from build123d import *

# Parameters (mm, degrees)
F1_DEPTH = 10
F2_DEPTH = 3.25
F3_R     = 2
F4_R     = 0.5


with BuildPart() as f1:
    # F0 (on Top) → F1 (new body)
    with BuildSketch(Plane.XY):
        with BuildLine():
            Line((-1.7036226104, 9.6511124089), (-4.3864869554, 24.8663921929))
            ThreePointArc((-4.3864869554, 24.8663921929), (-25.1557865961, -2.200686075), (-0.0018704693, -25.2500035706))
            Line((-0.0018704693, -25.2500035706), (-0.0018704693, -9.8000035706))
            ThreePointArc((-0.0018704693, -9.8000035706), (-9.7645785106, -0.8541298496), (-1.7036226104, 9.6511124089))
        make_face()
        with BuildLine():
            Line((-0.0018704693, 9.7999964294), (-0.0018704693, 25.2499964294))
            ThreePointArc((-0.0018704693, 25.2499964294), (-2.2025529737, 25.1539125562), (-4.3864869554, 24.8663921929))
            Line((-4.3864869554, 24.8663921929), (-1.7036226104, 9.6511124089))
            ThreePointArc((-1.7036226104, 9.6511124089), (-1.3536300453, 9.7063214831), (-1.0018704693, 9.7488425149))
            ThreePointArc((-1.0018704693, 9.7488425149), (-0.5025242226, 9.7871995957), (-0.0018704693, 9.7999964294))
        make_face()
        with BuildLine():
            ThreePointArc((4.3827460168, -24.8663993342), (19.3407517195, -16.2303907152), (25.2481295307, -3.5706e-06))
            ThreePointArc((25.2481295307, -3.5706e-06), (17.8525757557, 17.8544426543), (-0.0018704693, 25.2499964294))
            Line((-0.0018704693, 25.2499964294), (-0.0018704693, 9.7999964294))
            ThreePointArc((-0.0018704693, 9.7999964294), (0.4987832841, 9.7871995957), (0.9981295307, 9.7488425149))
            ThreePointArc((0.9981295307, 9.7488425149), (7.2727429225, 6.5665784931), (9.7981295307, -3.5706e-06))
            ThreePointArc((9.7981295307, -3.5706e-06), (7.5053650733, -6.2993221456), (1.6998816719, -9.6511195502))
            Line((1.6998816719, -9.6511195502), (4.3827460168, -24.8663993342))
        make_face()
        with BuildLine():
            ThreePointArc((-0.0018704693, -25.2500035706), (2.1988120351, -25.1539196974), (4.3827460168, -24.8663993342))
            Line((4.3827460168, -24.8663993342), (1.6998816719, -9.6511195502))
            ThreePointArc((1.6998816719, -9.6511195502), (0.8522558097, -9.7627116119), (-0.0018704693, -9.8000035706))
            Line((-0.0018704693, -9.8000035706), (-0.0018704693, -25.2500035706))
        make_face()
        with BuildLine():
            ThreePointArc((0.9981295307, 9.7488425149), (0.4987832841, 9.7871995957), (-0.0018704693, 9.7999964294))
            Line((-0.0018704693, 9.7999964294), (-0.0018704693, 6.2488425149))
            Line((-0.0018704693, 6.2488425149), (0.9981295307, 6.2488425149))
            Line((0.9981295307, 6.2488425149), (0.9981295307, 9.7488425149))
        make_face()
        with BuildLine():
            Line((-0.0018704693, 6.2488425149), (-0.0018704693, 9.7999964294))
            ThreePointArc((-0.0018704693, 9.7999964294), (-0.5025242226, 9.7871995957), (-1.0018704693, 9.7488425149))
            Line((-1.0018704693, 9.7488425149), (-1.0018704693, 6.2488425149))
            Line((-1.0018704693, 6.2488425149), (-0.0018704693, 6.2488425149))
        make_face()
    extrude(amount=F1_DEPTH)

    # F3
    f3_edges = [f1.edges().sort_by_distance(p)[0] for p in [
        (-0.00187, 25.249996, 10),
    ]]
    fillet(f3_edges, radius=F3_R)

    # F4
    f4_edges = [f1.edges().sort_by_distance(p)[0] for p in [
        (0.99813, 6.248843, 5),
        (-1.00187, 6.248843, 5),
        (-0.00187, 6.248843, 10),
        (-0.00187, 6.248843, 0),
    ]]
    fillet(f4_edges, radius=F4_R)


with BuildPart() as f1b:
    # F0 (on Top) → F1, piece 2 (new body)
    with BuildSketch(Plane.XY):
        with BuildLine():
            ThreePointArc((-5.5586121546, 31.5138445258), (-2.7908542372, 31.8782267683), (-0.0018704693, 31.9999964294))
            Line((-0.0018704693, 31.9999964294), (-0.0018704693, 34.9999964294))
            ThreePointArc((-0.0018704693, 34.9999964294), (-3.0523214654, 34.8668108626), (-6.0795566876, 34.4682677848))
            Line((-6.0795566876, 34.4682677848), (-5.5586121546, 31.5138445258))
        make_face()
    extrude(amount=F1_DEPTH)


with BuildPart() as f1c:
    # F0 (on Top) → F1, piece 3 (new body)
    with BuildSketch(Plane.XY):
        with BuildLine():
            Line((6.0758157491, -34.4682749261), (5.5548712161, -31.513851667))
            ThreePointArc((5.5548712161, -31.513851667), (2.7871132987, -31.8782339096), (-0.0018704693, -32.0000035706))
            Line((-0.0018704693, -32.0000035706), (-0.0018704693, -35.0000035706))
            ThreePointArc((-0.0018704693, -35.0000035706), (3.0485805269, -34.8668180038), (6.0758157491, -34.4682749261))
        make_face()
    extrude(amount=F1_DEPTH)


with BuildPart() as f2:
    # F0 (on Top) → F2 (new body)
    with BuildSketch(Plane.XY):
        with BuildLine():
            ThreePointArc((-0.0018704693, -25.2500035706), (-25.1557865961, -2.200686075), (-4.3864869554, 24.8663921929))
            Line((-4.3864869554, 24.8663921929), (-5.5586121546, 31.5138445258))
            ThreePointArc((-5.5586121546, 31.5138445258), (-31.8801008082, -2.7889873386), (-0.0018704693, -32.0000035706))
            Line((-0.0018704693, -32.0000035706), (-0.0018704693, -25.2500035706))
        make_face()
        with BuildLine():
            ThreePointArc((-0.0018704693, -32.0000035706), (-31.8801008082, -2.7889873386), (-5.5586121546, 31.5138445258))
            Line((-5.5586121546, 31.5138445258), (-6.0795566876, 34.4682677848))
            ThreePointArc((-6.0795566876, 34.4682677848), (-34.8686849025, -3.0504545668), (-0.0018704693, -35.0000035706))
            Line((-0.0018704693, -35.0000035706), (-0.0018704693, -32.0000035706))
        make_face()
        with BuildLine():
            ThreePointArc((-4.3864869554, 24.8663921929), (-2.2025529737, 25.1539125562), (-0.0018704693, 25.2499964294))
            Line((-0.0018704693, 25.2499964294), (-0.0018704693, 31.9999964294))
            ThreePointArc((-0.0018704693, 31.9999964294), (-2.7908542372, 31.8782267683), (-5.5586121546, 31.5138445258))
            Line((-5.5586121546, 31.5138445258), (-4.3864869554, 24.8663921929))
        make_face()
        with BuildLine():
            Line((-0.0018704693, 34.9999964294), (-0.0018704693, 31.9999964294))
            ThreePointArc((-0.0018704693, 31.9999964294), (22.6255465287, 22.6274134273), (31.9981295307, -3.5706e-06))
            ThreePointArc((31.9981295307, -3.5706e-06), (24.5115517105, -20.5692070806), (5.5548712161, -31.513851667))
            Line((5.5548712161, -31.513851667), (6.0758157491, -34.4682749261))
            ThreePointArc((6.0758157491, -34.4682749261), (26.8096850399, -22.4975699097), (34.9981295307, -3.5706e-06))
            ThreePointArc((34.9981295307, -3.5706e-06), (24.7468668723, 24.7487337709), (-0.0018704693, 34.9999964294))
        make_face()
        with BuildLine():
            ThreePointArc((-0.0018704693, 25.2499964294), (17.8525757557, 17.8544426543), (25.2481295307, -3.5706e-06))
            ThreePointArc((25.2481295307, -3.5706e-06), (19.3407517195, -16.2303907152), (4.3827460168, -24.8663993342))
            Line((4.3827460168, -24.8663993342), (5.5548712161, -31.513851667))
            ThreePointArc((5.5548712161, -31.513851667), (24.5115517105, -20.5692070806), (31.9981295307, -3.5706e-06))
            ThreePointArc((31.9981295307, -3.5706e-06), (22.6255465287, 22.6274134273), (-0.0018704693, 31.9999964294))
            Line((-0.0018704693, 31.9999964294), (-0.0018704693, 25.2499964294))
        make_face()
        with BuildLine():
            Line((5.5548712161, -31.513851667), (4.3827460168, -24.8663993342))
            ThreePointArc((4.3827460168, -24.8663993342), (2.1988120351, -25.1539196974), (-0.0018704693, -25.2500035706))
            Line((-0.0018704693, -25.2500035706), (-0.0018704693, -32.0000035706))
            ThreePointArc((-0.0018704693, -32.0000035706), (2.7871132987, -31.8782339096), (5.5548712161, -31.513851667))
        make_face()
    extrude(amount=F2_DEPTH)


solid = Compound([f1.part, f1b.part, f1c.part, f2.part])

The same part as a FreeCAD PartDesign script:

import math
import FreeCAD as App
import Part
import Sketcher
from FreeCAD import Vector
Q = App.Units.Quantity


def edges_at(feature, points):
    """Names of the edges that pass closest to the given points."""
    edges = feature.Shape.Edges
    near = lambda p: min(range(len(edges)), key=lambda i: edges[i].distToShape(Part.Vertex(*p))[0])
    return sorted({f"Edge{near(p) + 1}" for p in points})

doc = App.newDocument("Part")
body = doc.addObject("PartDesign::Body", "Body")

sketch1 = body.newObject("Sketcher::SketchObject", "Sketch")
sketch1.AttachmentSupport = (doc.getObject("XY_Plane"), [""])
sketch1.MapMode = "FlatFace"
sketch1.addGeometry(Part.ArcOfCircle(Part.Circle(Vector(-0.00187, -0.000004, 0), Vector(0, 0, 1), 25.25), math.radians(100), math.radians(270)), False)
sketch1.addGeometry(Part.ArcOfCircle(Part.Circle(Vector(-0.00187, -0.000004, 0), Vector(0, 0, 1), 25.25), math.radians(-90), math.radians(-80)), False)
sketch1.addGeometry(Part.ArcOfCircle(Part.Circle(Vector(-0.00187, -0.000004, 0), Vector(0, 0, 1), 25.25), math.radians(-80), math.radians(0)), False)
sketch1.addGeometry(Part.ArcOfCircle(Part.Circle(Vector(-0.00187, -0.000004, 0), Vector(0, 0, 1), 25.25), math.radians(0), math.radians(90)), False)
sketch1.addGeometry(Part.ArcOfCircle(Part.Circle(Vector(-0.00187, -0.000004, 0), Vector(0, 0, 1), 25.25), math.radians(90), math.radians(100)), False)
sketch1.addGeometry(Part.ArcOfCircle(Part.Circle(Vector(-0.00187, -0.000004, 0), Vector(0, 0, 1), 9.8), math.radians(100), math.radians(270)), False)
sketch1.addGeometry(Part.ArcOfCircle(Part.Circle(Vector(-0.00187, -0.000004, 0), Vector(0, 0, 1), 9.8), math.radians(95.856702), math.radians(100)), False)
sketch1.addGeometry(Part.LineSegment(Vector(-1.00187, 9.748843, 0), Vector(-1.00187, 6.248843, 0)), False)
sketch1.addGeometry(Part.LineSegment(Vector(-1.00187, 6.248843, 0), Vector(0.99813, 6.248843, 0)), False)
sketch1.addGeometry(Part.LineSegment(Vector(0.99813, 6.248843, 0), Vector(0.99813, 9.748843, 0)), False)
sketch1.addGeometry(Part.ArcOfCircle(Part.Circle(Vector(-0.00187, -0.000004, 0), Vector(0, 0, 1), 9.8), math.radians(0), math.radians(84.143298)), False)
sketch1.addGeometry(Part.ArcOfCircle(Part.Circle(Vector(-0.00187, -0.000004, 0), Vector(0, 0, 1), 9.8), math.radians(-80), math.radians(0)), False)
sketch1.addGeometry(Part.ArcOfCircle(Part.Circle(Vector(-0.00187, -0.000004, 0), Vector(0, 0, 1), 9.8), math.radians(-90), math.radians(-80)), False)
sketch1.addConstraint(Sketcher.Constraint("Tangent", 0, 2, 1, 1))
sketch1.addConstraint(Sketcher.Constraint("Tangent", 1, 2, 2, 1))
sketch1.addConstraint(Sketcher.Constraint("Tangent", 2, 2, 3, 1))
sketch1.addConstraint(Sketcher.Constraint("Tangent", 3, 2, 4, 1))
sketch1.addConstraint(Sketcher.Constraint("Tangent", 4, 2, 0, 1))
sketch1.addConstraint(Sketcher.Constraint("Tangent", 5, 1, 6, 2))
sketch1.addConstraint(Sketcher.Constraint("Coincident", 6, 1, 7, 1))
sketch1.addConstraint(Sketcher.Constraint("Coincident", 7, 2, 8, 1))
sketch1.addConstraint(Sketcher.Constraint("Coincident", 8, 2, 9, 1))
sketch1.addConstraint(Sketcher.Constraint("Coincident", 9, 2, 10, 2))
sketch1.addConstraint(Sketcher.Constraint("Tangent", 10, 1, 11, 2))
sketch1.addConstraint(Sketcher.Constraint("Tangent", 11, 1, 12, 2))
sketch1.addConstraint(Sketcher.Constraint("Tangent", 12, 1, 5, 2))
sketch1.addConstraint(Sketcher.Constraint("Vertical", 7))
sketch1.addConstraint(Sketcher.Constraint("Horizontal", 8))
sketch1.addConstraint(Sketcher.Constraint("Vertical", 9))
sketch1.addConstraint(Sketcher.Constraint("Coincident", 2, 3, 0, 3))
sketch1.addConstraint(Sketcher.Constraint("Coincident", 5, 3, 0, 3))
sketch1.addConstraint(Sketcher.Constraint("Coincident", 10, 3, 0, 3))
sketch1.addConstraint(Sketcher.Constraint("Equal", 5, 6))
sketch1.addConstraint(Sketcher.Constraint("Equal", 6, 10))
sketch1.addConstraint(Sketcher.Constraint("Symmetric", 0, 2, 3, 2, -1))
sketch1.addConstraint(Sketcher.Constraint("Horizontal", 12, 3, 2, 2))
sketch1.addConstraint(Sketcher.Constraint("Horizontal", 6, 1, 9, 2))
sketch1.addConstraint(Sketcher.Constraint("Horizontal", 2, 2, 10, 1))
sketch1.addConstraint(Sketcher.Constraint("Vertical", 12, 3, 0, 2))
sketch1.addConstraint(Sketcher.Constraint("Vertical", 3, 2, 12, 1))
sketch1.addConstraint(Sketcher.Constraint("Radius", 5, Q("9.8 mm")))
sketch1.addConstraint(Sketcher.Constraint("DistanceX", 8, 1, 8, 2, Q("2 mm")))
sketch1.addConstraint(Sketcher.Constraint("Radius", 0, Q("25.25 mm")))
sketch1.addConstraint(Sketcher.Constraint("DistanceY", 7, 2, 7, 1, Q("3.5 mm")))
sketch1.addConstraint(Sketcher.Constraint("DistanceY", 1, 2, -1, 1, Q("24.866399 mm")))
sketch1.addConstraint(Sketcher.Constraint("DistanceX", 0, 3, -1, 1, Q("0.00187 mm")))
sketch1.addConstraint(Sketcher.Constraint("DistanceX", -1, 1, 11, 1, Q("1.699882 mm")))
sketch1.addConstraint(Sketcher.Constraint("DistanceY", 5, 1, 6, 1, Q("0.09773 mm")))
sketch1.addConstraint(Sketcher.Constraint("DistanceX", 4, 2, -1, 1, Q("4.386487 mm")))
pad1 = body.newObject("PartDesign::Pad", "Pad")
pad1.Profile = sketch1
pad1.Length = 10
doc.recompute()

fillet = body.newObject("PartDesign::Fillet", "Fillet")
fillet.Base = (pad1, edges_at(pad1, [(17.853, 17.854, 10)]))
fillet.Radius = 2
doc.recompute()

fillet2 = body.newObject("PartDesign::Fillet", "Fillet001")
fillet2.Base = (fillet, edges_at(fillet, [
    (0.998, 6.249, 5),
    (-1.002, 6.249, 5),
    (-0.002, 6.249, 10),
    (-0.002, 6.249, 0),
]))
fillet2.Radius = 0.5
body2 = doc.addObject("PartDesign::Body", "Body001")

sketch2 = body2.newObject("Sketcher::SketchObject", "Sketch001")
sketch2.AttachmentSupport = (doc.getObject("XY_Plane001"), [""])
sketch2.MapMode = "FlatFace"
sketch2.addGeometry(Part.ArcOfCircle(Part.Circle(Vector(-0.00187, -0.000004, 0), Vector(0, 0, 1), 32), math.radians(90), math.radians(100)), False)
sketch2.addGeometry(Part.LineSegment(Vector(-0.00187, 31.999996, 0), Vector(-0.00187, 34.999996, 0)), False)
sketch2.addGeometry(Part.ArcOfCircle(Part.Circle(Vector(-0.00187, -0.000004, 0), Vector(0, 0, 1), 35), math.radians(90), math.radians(100)), False)
sketch2.addGeometry(Part.LineSegment(Vector(-6.079557, 34.468268, 0), Vector(-5.558612, 31.513845, 0)), False)
sketch2.addConstraint(Sketcher.Constraint("Coincident", 0, 1, 1, 1))
sketch2.addConstraint(Sketcher.Constraint("Coincident", 1, 2, 2, 1))
sketch2.addConstraint(Sketcher.Constraint("Coincident", 2, 2, 3, 1))
sketch2.addConstraint(Sketcher.Constraint("Coincident", 3, 2, 0, 2))
sketch2.addConstraint(Sketcher.Constraint("Vertical", 1))
sketch2.addConstraint(Sketcher.Constraint("Coincident", 2, 3, 0, 3))
sketch2.addConstraint(Sketcher.Constraint("Vertical", 2, 3, 0, 1))
sketch2.addConstraint(Sketcher.Constraint("Radius", 0, Q("32 mm")))
sketch2.addConstraint(Sketcher.Constraint("Radius", 2, Q("35 mm")))
sketch2.addConstraint(Sketcher.Constraint("Angle", 3, Q("-80 deg")))
sketch2.addConstraint(Sketcher.Constraint("DistanceX", 0, 3, -1, 1, Q("0.00187 mm")))
sketch2.addConstraint(Sketcher.Constraint("DistanceY", 2, 2, 1, 2, Q("0.531729 mm")))
sketch2.addConstraint(Sketcher.Constraint("DistanceY", -1, 1, 0, 1, Q("31.999996 mm")))
pad2 = body2.newObject("PartDesign::Pad", "Pad001")
pad2.Profile = sketch2
pad2.Length = 10
body3 = doc.addObject("PartDesign::Body", "Body002")

sketch3 = body3.newObject("Sketcher::SketchObject", "Sketch002")
sketch3.AttachmentSupport = (doc.getObject("XY_Plane002"), [""])
sketch3.MapMode = "FlatFace"
sketch3.addGeometry(Part.LineSegment(Vector(6.075816, -34.468275, 0), Vector(5.554871, -31.513852, 0)), False)
sketch3.addGeometry(Part.ArcOfCircle(Part.Circle(Vector(-0.00187, -0.000004, 0), Vector(0, 0, 1), 32), math.radians(-90), math.radians(-80)), False)
sketch3.addGeometry(Part.LineSegment(Vector(-0.00187, -32.000004, 0), Vector(-0.00187, -35.000004, 0)), False)
sketch3.addGeometry(Part.ArcOfCircle(Part.Circle(Vector(-0.00187, -0.000004, 0), Vector(0, 0, 1), 35), math.radians(-90), math.radians(-80)), False)
sketch3.addConstraint(Sketcher.Constraint("Coincident", 0, 2, 1, 2))
sketch3.addConstraint(Sketcher.Constraint("Coincident", 1, 1, 2, 1))
sketch3.addConstraint(Sketcher.Constraint("Coincident", 2, 2, 3, 1))
sketch3.addConstraint(Sketcher.Constraint("Coincident", 3, 2, 0, 1))
sketch3.addConstraint(Sketcher.Constraint("Vertical", 2))
sketch3.addConstraint(Sketcher.Constraint("Coincident", 3, 3, 1, 3))
sketch3.addConstraint(Sketcher.Constraint("Vertical", 3, 3, 1, 1))
sketch3.addConstraint(Sketcher.Constraint("Radius", 1, Q("32 mm")))
sketch3.addConstraint(Sketcher.Constraint("Radius", 3, Q("35 mm")))
sketch3.addConstraint(Sketcher.Constraint("Angle", 0, Q("100 deg")))
sketch3.addConstraint(Sketcher.Constraint("DistanceX", 1, 3, -1, 1, Q("0.00187 mm")))
sketch3.addConstraint(Sketcher.Constraint("DistanceX", -1, 1, 0, 2, Q("5.554871 mm")))
sketch3.addConstraint(Sketcher.Constraint("DistanceY", 0, 2, -1, 1, Q("31.513852 mm")))
pad3 = body3.newObject("PartDesign::Pad", "Pad002")
pad3.Profile = sketch3
pad3.Length = 10
body4 = doc.addObject("PartDesign::Body", "Body003")

sketch4 = body4.newObject("Sketcher::SketchObject", "Sketch003")
sketch4.AttachmentSupport = (doc.getObject("XY_Plane003"), [""])
sketch4.MapMode = "FlatFace"
sketch4.addGeometry(Part.LineSegment(Vector(5.554871, -31.513852, 0), Vector(6.075816, -34.468275, 0)), False)
sketch4.addGeometry(Part.ArcOfCircle(Part.Circle(Vector(-0.00187, -0.000004, 0), Vector(0, 0, 1), 35), math.radians(-80), math.radians(0)), False)
sketch4.addGeometry(Part.ArcOfCircle(Part.Circle(Vector(-0.00187, -0.000004, 0), Vector(0, 0, 1), 35), math.radians(0), math.radians(90)), False)
sketch4.addGeometry(Part.LineSegment(Vector(-0.00187, 34.999996, 0), Vector(-0.00187, 31.999996, 0)), False)
sketch4.addGeometry(Part.ArcOfCircle(Part.Circle(Vector(-0.00187, -0.000004, 0), Vector(0, 0, 1), 32), math.radians(90), math.radians(100)), False)
sketch4.addGeometry(Part.LineSegment(Vector(-5.558612, 31.513845, 0), Vector(-6.079557, 34.468268, 0)), False)
sketch4.addGeometry(Part.ArcOfCircle(Part.Circle(Vector(-0.00187, -0.000004, 0), Vector(0, 0, 1), 35), math.radians(100), math.radians(270)), False)
sketch4.addGeometry(Part.LineSegment(Vector(-0.00187, -35.000004, 0), Vector(-0.00187, -32.000004, 0)), False)
sketch4.addGeometry(Part.ArcOfCircle(Part.Circle(Vector(-0.00187, -0.000004, 0), Vector(0, 0, 1), 32), math.radians(-90), math.radians(-80)), False)
sketch4.addGeometry(Part.ArcOfCircle(Part.Circle(Vector(-0.00187, -0.000004, 0), Vector(0, 0, 1), 25.25), math.radians(100), math.radians(270)), False)
sketch4.addGeometry(Part.ArcOfCircle(Part.Circle(Vector(-0.00187, -0.000004, 0), Vector(0, 0, 1), 25.25), math.radians(90), math.radians(100)), False)
sketch4.addGeometry(Part.ArcOfCircle(Part.Circle(Vector(-0.00187, -0.000004, 0), Vector(0, 0, 1), 25.25), math.radians(0), math.radians(90)), False)
sketch4.addGeometry(Part.ArcOfCircle(Part.Circle(Vector(-0.00187, -0.000004, 0), Vector(0, 0, 1), 25.25), math.radians(-80), math.radians(0)), False)
sketch4.addGeometry(Part.ArcOfCircle(Part.Circle(Vector(-0.00187, -0.000004, 0), Vector(0, 0, 1), 25.25), math.radians(-90), math.radians(-80)), False)
sketch4.addConstraint(Sketcher.Constraint("Coincident", 0, 2, 1, 1))
sketch4.addConstraint(Sketcher.Constraint("Tangent", 1, 2, 2, 1))
sketch4.addConstraint(Sketcher.Constraint("Coincident", 2, 2, 3, 1))
sketch4.addConstraint(Sketcher.Constraint("Coincident", 3, 2, 4, 1))
sketch4.addConstraint(Sketcher.Constraint("Coincident", 4, 2, 5, 1))
sketch4.addConstraint(Sketcher.Constraint("Coincident", 5, 2, 6, 1))
sketch4.addConstraint(Sketcher.Constraint("Coincident", 6, 2, 7, 1))
sketch4.addConstraint(Sketcher.Constraint("Coincident", 7, 2, 8, 1))
sketch4.addConstraint(Sketcher.Constraint("Coincident", 8, 2, 0, 1))
sketch4.addConstraint(Sketcher.Constraint("Tangent", 9, 1, 10, 2))
sketch4.addConstraint(Sketcher.Constraint("Tangent", 10, 1, 11, 2))
sketch4.addConstraint(Sketcher.Constraint("Tangent", 11, 1, 12, 2))
sketch4.addConstraint(Sketcher.Constraint("Tangent", 12, 1, 13, 2))
sketch4.addConstraint(Sketcher.Constraint("Tangent", 13, 1, 9, 2))
sketch4.addConstraint(Sketcher.Constraint("Vertical", 3))
sketch4.addConstraint(Sketcher.Constraint("Vertical", 7))
sketch4.addConstraint(Sketcher.Constraint("Coincident", 4, 3, 1, 3))
sketch4.addConstraint(Sketcher.Constraint("Coincident", 6, 3, 1, 3))
sketch4.addConstraint(Sketcher.Constraint("Coincident", 8, 3, 1, 3))
sketch4.addConstraint(Sketcher.Constraint("Coincident", 9, 3, 1, 3))
sketch4.addConstraint(Sketcher.Constraint("Coincident", 11, 3, 1, 3))
sketch4.addConstraint(Sketcher.Constraint("Equal", 1, 2))
sketch4.addConstraint(Sketcher.Constraint("Equal", 2, 6))
sketch4.addConstraint(Sketcher.Constraint("Equal", 4, 8))
sketch4.addConstraint(Sketcher.Constraint("Symmetric", 2, 2, 6, 2, -1))
sketch4.addConstraint(Sketcher.Constraint("Parallel", 0, 5))
sketch4.addConstraint(Sketcher.Constraint("Horizontal", 13, 3, 1, 2))
sketch4.addConstraint(Sketcher.Constraint("Horizontal", 1, 2, 11, 1))
sketch4.addConstraint(Sketcher.Constraint("Vertical", 13, 3, 2, 2))
sketch4.addConstraint(Sketcher.Constraint("Vertical", 7, 2, 10, 1))
sketch4.addConstraint(Sketcher.Constraint("Vertical", 10, 1, 13, 1))
sketch4.addConstraint(Sketcher.Constraint("Radius", 1, Q("35 mm")))
sketch4.addConstraint(Sketcher.Constraint("Radius", 4, Q("32 mm")))
sketch4.addConstraint(Sketcher.Constraint("Angle", 0, Q("-80 deg")))
sketch4.addConstraint(Sketcher.Constraint("Radius", 9, Q("25.25 mm")))
sketch4.addConstraint(Sketcher.Constraint("DistanceY", 12, 1, -1, 1, Q("24.866399 mm")))
sketch4.addConstraint(Sketcher.Constraint("DistanceX", 1, 3, -1, 1, Q("0.00187 mm")))
sketch4.addConstraint(Sketcher.Constraint("DistanceX", -1, 1, 8, 2, Q("5.554871 mm")))
sketch4.addConstraint(Sketcher.Constraint("DistanceX", 4, 2, 3, 2, Q("5.556742 mm")))
sketch4.addConstraint(Sketcher.Constraint("DistanceX", 5, 2, 9, 1, Q("1.69307 mm")))
pad4 = body4.newObject("PartDesign::Pad", "Pad003")
pad4.Profile = sketch4
pad4.Length = 3.25

doc.recompute()
